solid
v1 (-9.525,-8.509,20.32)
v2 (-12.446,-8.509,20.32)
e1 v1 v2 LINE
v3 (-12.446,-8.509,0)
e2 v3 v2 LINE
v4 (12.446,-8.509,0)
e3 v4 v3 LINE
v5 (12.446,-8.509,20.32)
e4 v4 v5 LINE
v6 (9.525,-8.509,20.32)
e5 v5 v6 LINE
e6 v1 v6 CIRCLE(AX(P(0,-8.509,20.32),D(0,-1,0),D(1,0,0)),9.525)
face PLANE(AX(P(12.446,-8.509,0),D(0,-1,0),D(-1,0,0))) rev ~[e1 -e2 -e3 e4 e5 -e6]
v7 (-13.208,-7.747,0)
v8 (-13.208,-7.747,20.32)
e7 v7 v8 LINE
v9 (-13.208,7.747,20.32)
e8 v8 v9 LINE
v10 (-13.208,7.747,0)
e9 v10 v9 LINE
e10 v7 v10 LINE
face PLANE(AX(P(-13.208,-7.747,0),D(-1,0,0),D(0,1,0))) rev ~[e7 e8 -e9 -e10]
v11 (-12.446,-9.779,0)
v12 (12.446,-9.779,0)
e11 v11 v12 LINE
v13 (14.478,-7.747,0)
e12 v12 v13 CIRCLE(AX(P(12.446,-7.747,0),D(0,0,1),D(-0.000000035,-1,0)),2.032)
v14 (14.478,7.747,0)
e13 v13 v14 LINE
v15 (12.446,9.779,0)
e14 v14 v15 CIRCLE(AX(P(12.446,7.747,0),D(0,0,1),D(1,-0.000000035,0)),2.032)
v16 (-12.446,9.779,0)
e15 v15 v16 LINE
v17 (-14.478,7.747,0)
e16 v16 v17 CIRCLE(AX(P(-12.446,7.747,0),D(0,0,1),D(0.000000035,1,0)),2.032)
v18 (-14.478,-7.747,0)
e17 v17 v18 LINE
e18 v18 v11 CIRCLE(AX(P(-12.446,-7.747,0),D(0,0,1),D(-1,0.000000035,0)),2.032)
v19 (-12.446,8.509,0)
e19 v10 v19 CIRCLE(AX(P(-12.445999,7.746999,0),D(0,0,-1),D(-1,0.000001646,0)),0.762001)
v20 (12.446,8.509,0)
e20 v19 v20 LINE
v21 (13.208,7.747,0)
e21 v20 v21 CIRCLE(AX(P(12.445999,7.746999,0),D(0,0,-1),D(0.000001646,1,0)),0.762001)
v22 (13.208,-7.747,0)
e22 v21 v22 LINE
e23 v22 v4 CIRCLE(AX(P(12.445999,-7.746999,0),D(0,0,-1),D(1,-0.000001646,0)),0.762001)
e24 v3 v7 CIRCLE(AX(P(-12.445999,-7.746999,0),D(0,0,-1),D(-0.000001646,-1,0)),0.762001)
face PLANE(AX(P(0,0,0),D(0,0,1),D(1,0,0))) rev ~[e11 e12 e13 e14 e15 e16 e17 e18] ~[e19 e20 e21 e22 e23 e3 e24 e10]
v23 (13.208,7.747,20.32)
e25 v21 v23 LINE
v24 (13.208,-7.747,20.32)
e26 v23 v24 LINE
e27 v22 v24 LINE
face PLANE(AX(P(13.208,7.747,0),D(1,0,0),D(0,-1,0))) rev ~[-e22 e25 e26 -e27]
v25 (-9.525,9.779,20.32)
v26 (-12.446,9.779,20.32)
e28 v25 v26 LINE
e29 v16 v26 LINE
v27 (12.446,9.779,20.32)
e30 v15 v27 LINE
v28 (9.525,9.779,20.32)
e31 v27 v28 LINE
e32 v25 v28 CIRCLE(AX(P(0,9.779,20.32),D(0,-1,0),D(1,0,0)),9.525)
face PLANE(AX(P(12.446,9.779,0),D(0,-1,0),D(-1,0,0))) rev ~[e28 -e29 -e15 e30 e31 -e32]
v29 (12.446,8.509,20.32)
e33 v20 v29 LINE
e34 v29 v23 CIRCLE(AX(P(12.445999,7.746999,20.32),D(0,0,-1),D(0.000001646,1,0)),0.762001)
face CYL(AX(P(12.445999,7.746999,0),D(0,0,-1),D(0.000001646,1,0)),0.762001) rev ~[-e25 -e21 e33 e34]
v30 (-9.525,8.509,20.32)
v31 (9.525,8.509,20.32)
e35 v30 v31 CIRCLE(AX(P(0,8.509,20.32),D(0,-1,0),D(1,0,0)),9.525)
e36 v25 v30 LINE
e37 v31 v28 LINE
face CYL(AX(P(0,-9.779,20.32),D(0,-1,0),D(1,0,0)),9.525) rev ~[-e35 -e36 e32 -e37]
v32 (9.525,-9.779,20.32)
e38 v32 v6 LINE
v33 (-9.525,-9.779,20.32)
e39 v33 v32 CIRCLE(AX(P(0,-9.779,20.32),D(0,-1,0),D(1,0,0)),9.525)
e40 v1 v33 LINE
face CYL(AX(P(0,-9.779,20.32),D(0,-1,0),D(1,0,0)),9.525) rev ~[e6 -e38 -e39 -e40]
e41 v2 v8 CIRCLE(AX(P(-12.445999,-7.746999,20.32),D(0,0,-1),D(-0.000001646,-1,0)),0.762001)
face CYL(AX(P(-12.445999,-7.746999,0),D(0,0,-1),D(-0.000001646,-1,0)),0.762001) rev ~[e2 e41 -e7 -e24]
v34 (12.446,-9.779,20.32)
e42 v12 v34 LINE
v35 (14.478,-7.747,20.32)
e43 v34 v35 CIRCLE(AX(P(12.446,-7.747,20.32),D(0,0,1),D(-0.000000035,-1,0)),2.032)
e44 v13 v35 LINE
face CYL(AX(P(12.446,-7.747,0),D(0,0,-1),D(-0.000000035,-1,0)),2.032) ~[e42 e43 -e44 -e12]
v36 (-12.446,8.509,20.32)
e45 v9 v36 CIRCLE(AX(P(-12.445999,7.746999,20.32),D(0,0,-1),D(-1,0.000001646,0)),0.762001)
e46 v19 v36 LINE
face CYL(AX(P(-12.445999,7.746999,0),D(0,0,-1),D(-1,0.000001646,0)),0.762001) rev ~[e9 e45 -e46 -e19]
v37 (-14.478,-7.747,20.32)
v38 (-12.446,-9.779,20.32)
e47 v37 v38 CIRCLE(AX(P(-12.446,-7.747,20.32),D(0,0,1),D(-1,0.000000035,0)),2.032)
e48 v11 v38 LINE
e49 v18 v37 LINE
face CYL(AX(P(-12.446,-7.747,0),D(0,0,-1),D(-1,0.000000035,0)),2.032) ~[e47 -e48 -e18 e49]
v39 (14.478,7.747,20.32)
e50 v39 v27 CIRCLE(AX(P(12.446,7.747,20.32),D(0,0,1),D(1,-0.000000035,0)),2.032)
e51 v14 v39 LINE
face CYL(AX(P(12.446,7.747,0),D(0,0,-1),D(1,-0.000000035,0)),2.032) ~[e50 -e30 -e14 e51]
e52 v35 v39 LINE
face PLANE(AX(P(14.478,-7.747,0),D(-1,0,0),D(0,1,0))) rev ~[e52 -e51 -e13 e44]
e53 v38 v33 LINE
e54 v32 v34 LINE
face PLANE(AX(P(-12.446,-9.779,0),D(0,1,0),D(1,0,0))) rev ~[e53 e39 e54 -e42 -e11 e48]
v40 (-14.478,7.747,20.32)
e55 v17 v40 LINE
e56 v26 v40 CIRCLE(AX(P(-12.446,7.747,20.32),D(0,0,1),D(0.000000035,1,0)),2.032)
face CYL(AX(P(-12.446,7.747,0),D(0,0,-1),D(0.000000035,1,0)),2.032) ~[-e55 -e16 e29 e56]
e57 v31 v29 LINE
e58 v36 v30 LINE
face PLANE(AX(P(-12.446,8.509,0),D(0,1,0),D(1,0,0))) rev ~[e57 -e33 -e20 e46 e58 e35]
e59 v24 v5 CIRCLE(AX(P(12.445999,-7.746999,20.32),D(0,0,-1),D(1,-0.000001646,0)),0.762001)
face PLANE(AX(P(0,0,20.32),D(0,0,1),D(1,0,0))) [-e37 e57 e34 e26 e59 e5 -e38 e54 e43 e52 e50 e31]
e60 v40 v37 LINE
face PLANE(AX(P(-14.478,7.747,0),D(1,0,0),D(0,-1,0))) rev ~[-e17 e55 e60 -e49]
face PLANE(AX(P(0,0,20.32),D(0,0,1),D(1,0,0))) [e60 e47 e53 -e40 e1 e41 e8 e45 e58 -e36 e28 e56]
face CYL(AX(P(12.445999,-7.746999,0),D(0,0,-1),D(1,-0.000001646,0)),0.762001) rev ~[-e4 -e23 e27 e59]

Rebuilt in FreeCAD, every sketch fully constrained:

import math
import FreeCAD as App
import Part
import Sketcher
from FreeCAD import Vector
Q = App.Units.Quantity

doc = App.newDocument("Part")
params = doc.addObject("Spreadsheet::Sheet", "Params")
for row, (alias, value) in enumerate([
    ("sketch1_radius", "0.08 in"),
    ("sketch1_radius2", "0.03 in"),
    ("sketch1_width", "0.98 in"),
    ("sketch1_height", "0.61 in"),
    ("pad1_length", "0.8 in"),
    ("sketch2_diameter", "0.75 in"),
], start=1):
    params.set(f"A{row}", alias)
    params.set(f"B{row}", "=" + value)
    params.setAlias(f"B{row}", alias)

body = doc.addObject("PartDesign::Body", "Body")

# Sketch on XY plane
sketch1 = doc.addObject("Sketcher::SketchObject", "Sketch")
body.addObject(sketch1)
sketch1.AttachmentSupport = (doc.XY_Plane, [""])
sketch1.MapMode = "FlatFace"
sketch1.addGeometry(Part.ArcOfCircle(Part.Circle(Vector(12.446, 7.747, 0), Vector(0, 0, 1), 2.032), math.radians(-0.000002), math.radians(90.000002)), False)
sketch1.addGeometry(Part.LineSegment(Vector(12.446, 9.779, 0), Vector(-12.446, 9.779, 0)), False)
sketch1.addGeometry(Part.ArcOfCircle(Part.Circle(Vector(-12.446, 7.747, 0), Vector(0, 0, 1), 2.032), math.radians(89.999998), math.radians(180.000002)), False)
sketch1.addGeometry(Part.LineSegment(Vector(-14.478, 7.747, 0), Vector(-14.478, -7.747, 0)), False)
sketch1.addGeometry(Part.ArcOfCircle(Part.Circle(Vector(-12.446, -7.747, 0), Vector(0, 0, 1), 2.032), math.radians(179.999998), math.radians(270.000002)), False)
sketch1.addGeometry(Part.LineSegment(Vector(-12.446, -9.779, 0), Vector(12.446, -9.779, 0)), False)
sketch1.addGeometry(Part.ArcOfCircle(Part.Circle(Vector(12.446, -7.747, 0), Vector(0, 0, 1), 2.032), math.radians(-90.000002), math.radians(0.000002)), False)
sketch1.addGeometry(Part.LineSegment(Vector(14.478, -7.747, 0), Vector(14.478, 7.747, 0)), False)
sketch1.addGeometry(Part.ArcOfCircle(Part.Circle(Vector(-12.445999, 7.746999, 0), Vector(0, 0, 1), 0.762001), math.radians(90.000094), math.radians(179.999906)), False)
sketch1.addGeometry(Part.LineSegment(Vector(-12.446, 8.509, 0), Vector(12.446, 8.509, 0)), False)
sketch1.addGeometry(Part.ArcOfCircle(Part.Circle(Vector(12.445999, 7.746999, 0), Vector(0, 0, 1), 0.762001), math.radians(0.000094), math.radians(89.999906)), False)
sketch1.addGeometry(Part.LineSegment(Vector(13.208, 7.747, 0), Vector(13.208, -7.747, 0)), False)
sketch1.addGeometry(Part.ArcOfCircle(Part.Circle(Vector(12.445999, -7.746999, 0), Vector(0, 0, 1), 0.762001), math.radians(-89.999906), math.radians(-0.000094)), False)
sketch1.addGeometry(Part.LineSegment(Vector(12.446, -8.509, 0), Vector(-12.446, -8.509, 0)), False)
sketch1.addGeometry(Part.ArcOfCircle(Part.Circle(Vector(-12.445999, -7.746999, 0), Vector(0, 0, 1), 0.762001), math.radians(-179.999906), math.radians(-90.000094)), False)
sketch1.addGeometry(Part.LineSegment(Vector(-13.208, -7.747, 0), Vector(-13.208, 7.747, 0)), False)
sketch1.addConstraint(Sketcher.Constraint("Tangent", 0, 2, 1, 1))
sketch1.addConstraint(Sketcher.Constraint("Tangent", 1, 2, 2, 1))
sketch1.addConstraint(Sketcher.Constraint("Tangent", 2, 2, 3, 1))
sketch1.addConstraint(Sketcher.Constraint("Tangent", 3, 2, 4, 1))
sketch1.addConstraint(Sketcher.Constraint("Tangent", 4, 2, 5, 1))
sketch1.addConstraint(Sketcher.Constraint("Tangent", 5, 2, 6, 1))
sketch1.addConstraint(Sketcher.Constraint("Tangent", 6, 2, 7, 1))
sketch1.addConstraint(Sketcher.Constraint("Tangent", 7, 2, 0, 1))
sketch1.addConstraint(Sketcher.Constraint("Tangent", 8, 1, 9, 1))
sketch1.addConstraint(Sketcher.Constraint("Tangent", 9, 2, 10, 2))
sketch1.addConstraint(Sketcher.Constraint("Tangent", 10, 1, 11, 1))
sketch1.addConstraint(Sketcher.Constraint("Tangent", 11, 2, 12, 2))
sketch1.addConstraint(Sketcher.Constraint("Tangent", 12, 1, 13, 1))
sketch1.addConstraint(Sketcher.Constraint("Tangent", 13, 2, 14, 2))
sketch1.addConstraint(Sketcher.Constraint("Tangent", 14, 1, 15, 1))
sketch1.addConstraint(Sketcher.Constraint("Tangent", 15, 2, 8, 2))
sketch1.addConstraint(Sketcher.Constraint("Horizontal", 1))
sketch1.addConstraint(Sketcher.Constraint("Vertical", 3))
sketch1.addConstraint(Sketcher.Constraint("Horizontal", 5))
sketch1.addConstraint(Sketcher.Constraint("Vertical", 7))
sketch1.addConstraint(Sketcher.Constraint("Horizontal", 9))
sketch1.addConstraint(Sketcher.Constraint("Vertical", 11))
sketch1.addConstraint(Sketcher.Constraint("Horizontal", 13))
sketch1.addConstraint(Sketcher.Constraint("Vertical", 15))
sketch1.addConstraint(Sketcher.Constraint("Coincident", 8, 3, 2, 3))
sketch1.addConstraint(Sketcher.Constraint("Coincident", 10, 3, 0, 3))
sketch1.addConstraint(Sketcher.Constraint("Coincident", 12, 3, 6, 3))
sketch1.addConstraint(Sketcher.Constraint("Equal", 0, 2))
sketch1.addConstraint(Sketcher.Constraint("Equal", 2, 4))
sketch1.addConstraint(Sketcher.Constraint("Equal", 4, 6))
sketch1.addConstraint(Sketcher.Constraint("Equal", 12, 14))
sketch1.addConstraint(Sketcher.Constraint("Symmetric", 0, 3, 4, 3, -1, 1))
sketch1.addConstraint(Sketcher.Constraint("Radius", 0, Q("0.08 in")))
sketch1.addConstraint(Sketcher.Constraint("Radius", 8, Q("0.03 in")))
sketch1.addConstraint(Sketcher.Constraint("DistanceX", 1, 2, 1, 1, Q("0.98 in")))
sketch1.addConstraint(Sketcher.Constraint("DistanceY", 3, 2, 3, 1, Q("0.61 in")))
sketch1.setExpression("Constraints[32]", "Params.sketch1_radius")
sketch1.setExpression("Constraints[33]", "Params.sketch1_radius2")
sketch1.setExpression("Constraints[34]", "Params.sketch1_width")
sketch1.setExpression("Constraints[35]", "Params.sketch1_height")
pad1 = doc.addObject("PartDesign::Pad", "Pad")
body.addObject(pad1)
pad1.Profile = sketch1
pad1.setExpression("Length", "Params.pad1_length")

# Sketch on XZ plane
sketch2 = doc.addObject("Sketcher::SketchObject", "Sketch001")
body.addObject(sketch2)
sketch2.AttachmentSupport = (doc.XZ_Plane, [""])
sketch2.MapMode = "FlatFace"
sketch2.AttachmentOffset = App.Placement(Vector(0, 0, 0.385 * 25.4), App.Rotation())
sketch2.addGeometry(Part.Circle(Vector(0, 20.32, 0), Vector(0, 0, 1), 9.525), False)
sketch2.addConstraint(Sketcher.Constraint("PointOnObject", 0, 3, -2))
sketch2.addConstraint(Sketcher.Constraint("Diameter", 0, Q("0.75 in")))
sketch2.addConstraint(Sketcher.Constraint("DistanceY", -1, 1, 0, 3, Q("0.8 in")))
sketch2.setExpression("Constraints[1]", "Params.sketch2_diameter")
pocket1 = doc.addObject("PartDesign::Pocket", "Pocket")
body.addObject(pocket1)
pocket1.Profile = sketch2
pocket1.Type = "ThroughAll"

doc.recompute()
